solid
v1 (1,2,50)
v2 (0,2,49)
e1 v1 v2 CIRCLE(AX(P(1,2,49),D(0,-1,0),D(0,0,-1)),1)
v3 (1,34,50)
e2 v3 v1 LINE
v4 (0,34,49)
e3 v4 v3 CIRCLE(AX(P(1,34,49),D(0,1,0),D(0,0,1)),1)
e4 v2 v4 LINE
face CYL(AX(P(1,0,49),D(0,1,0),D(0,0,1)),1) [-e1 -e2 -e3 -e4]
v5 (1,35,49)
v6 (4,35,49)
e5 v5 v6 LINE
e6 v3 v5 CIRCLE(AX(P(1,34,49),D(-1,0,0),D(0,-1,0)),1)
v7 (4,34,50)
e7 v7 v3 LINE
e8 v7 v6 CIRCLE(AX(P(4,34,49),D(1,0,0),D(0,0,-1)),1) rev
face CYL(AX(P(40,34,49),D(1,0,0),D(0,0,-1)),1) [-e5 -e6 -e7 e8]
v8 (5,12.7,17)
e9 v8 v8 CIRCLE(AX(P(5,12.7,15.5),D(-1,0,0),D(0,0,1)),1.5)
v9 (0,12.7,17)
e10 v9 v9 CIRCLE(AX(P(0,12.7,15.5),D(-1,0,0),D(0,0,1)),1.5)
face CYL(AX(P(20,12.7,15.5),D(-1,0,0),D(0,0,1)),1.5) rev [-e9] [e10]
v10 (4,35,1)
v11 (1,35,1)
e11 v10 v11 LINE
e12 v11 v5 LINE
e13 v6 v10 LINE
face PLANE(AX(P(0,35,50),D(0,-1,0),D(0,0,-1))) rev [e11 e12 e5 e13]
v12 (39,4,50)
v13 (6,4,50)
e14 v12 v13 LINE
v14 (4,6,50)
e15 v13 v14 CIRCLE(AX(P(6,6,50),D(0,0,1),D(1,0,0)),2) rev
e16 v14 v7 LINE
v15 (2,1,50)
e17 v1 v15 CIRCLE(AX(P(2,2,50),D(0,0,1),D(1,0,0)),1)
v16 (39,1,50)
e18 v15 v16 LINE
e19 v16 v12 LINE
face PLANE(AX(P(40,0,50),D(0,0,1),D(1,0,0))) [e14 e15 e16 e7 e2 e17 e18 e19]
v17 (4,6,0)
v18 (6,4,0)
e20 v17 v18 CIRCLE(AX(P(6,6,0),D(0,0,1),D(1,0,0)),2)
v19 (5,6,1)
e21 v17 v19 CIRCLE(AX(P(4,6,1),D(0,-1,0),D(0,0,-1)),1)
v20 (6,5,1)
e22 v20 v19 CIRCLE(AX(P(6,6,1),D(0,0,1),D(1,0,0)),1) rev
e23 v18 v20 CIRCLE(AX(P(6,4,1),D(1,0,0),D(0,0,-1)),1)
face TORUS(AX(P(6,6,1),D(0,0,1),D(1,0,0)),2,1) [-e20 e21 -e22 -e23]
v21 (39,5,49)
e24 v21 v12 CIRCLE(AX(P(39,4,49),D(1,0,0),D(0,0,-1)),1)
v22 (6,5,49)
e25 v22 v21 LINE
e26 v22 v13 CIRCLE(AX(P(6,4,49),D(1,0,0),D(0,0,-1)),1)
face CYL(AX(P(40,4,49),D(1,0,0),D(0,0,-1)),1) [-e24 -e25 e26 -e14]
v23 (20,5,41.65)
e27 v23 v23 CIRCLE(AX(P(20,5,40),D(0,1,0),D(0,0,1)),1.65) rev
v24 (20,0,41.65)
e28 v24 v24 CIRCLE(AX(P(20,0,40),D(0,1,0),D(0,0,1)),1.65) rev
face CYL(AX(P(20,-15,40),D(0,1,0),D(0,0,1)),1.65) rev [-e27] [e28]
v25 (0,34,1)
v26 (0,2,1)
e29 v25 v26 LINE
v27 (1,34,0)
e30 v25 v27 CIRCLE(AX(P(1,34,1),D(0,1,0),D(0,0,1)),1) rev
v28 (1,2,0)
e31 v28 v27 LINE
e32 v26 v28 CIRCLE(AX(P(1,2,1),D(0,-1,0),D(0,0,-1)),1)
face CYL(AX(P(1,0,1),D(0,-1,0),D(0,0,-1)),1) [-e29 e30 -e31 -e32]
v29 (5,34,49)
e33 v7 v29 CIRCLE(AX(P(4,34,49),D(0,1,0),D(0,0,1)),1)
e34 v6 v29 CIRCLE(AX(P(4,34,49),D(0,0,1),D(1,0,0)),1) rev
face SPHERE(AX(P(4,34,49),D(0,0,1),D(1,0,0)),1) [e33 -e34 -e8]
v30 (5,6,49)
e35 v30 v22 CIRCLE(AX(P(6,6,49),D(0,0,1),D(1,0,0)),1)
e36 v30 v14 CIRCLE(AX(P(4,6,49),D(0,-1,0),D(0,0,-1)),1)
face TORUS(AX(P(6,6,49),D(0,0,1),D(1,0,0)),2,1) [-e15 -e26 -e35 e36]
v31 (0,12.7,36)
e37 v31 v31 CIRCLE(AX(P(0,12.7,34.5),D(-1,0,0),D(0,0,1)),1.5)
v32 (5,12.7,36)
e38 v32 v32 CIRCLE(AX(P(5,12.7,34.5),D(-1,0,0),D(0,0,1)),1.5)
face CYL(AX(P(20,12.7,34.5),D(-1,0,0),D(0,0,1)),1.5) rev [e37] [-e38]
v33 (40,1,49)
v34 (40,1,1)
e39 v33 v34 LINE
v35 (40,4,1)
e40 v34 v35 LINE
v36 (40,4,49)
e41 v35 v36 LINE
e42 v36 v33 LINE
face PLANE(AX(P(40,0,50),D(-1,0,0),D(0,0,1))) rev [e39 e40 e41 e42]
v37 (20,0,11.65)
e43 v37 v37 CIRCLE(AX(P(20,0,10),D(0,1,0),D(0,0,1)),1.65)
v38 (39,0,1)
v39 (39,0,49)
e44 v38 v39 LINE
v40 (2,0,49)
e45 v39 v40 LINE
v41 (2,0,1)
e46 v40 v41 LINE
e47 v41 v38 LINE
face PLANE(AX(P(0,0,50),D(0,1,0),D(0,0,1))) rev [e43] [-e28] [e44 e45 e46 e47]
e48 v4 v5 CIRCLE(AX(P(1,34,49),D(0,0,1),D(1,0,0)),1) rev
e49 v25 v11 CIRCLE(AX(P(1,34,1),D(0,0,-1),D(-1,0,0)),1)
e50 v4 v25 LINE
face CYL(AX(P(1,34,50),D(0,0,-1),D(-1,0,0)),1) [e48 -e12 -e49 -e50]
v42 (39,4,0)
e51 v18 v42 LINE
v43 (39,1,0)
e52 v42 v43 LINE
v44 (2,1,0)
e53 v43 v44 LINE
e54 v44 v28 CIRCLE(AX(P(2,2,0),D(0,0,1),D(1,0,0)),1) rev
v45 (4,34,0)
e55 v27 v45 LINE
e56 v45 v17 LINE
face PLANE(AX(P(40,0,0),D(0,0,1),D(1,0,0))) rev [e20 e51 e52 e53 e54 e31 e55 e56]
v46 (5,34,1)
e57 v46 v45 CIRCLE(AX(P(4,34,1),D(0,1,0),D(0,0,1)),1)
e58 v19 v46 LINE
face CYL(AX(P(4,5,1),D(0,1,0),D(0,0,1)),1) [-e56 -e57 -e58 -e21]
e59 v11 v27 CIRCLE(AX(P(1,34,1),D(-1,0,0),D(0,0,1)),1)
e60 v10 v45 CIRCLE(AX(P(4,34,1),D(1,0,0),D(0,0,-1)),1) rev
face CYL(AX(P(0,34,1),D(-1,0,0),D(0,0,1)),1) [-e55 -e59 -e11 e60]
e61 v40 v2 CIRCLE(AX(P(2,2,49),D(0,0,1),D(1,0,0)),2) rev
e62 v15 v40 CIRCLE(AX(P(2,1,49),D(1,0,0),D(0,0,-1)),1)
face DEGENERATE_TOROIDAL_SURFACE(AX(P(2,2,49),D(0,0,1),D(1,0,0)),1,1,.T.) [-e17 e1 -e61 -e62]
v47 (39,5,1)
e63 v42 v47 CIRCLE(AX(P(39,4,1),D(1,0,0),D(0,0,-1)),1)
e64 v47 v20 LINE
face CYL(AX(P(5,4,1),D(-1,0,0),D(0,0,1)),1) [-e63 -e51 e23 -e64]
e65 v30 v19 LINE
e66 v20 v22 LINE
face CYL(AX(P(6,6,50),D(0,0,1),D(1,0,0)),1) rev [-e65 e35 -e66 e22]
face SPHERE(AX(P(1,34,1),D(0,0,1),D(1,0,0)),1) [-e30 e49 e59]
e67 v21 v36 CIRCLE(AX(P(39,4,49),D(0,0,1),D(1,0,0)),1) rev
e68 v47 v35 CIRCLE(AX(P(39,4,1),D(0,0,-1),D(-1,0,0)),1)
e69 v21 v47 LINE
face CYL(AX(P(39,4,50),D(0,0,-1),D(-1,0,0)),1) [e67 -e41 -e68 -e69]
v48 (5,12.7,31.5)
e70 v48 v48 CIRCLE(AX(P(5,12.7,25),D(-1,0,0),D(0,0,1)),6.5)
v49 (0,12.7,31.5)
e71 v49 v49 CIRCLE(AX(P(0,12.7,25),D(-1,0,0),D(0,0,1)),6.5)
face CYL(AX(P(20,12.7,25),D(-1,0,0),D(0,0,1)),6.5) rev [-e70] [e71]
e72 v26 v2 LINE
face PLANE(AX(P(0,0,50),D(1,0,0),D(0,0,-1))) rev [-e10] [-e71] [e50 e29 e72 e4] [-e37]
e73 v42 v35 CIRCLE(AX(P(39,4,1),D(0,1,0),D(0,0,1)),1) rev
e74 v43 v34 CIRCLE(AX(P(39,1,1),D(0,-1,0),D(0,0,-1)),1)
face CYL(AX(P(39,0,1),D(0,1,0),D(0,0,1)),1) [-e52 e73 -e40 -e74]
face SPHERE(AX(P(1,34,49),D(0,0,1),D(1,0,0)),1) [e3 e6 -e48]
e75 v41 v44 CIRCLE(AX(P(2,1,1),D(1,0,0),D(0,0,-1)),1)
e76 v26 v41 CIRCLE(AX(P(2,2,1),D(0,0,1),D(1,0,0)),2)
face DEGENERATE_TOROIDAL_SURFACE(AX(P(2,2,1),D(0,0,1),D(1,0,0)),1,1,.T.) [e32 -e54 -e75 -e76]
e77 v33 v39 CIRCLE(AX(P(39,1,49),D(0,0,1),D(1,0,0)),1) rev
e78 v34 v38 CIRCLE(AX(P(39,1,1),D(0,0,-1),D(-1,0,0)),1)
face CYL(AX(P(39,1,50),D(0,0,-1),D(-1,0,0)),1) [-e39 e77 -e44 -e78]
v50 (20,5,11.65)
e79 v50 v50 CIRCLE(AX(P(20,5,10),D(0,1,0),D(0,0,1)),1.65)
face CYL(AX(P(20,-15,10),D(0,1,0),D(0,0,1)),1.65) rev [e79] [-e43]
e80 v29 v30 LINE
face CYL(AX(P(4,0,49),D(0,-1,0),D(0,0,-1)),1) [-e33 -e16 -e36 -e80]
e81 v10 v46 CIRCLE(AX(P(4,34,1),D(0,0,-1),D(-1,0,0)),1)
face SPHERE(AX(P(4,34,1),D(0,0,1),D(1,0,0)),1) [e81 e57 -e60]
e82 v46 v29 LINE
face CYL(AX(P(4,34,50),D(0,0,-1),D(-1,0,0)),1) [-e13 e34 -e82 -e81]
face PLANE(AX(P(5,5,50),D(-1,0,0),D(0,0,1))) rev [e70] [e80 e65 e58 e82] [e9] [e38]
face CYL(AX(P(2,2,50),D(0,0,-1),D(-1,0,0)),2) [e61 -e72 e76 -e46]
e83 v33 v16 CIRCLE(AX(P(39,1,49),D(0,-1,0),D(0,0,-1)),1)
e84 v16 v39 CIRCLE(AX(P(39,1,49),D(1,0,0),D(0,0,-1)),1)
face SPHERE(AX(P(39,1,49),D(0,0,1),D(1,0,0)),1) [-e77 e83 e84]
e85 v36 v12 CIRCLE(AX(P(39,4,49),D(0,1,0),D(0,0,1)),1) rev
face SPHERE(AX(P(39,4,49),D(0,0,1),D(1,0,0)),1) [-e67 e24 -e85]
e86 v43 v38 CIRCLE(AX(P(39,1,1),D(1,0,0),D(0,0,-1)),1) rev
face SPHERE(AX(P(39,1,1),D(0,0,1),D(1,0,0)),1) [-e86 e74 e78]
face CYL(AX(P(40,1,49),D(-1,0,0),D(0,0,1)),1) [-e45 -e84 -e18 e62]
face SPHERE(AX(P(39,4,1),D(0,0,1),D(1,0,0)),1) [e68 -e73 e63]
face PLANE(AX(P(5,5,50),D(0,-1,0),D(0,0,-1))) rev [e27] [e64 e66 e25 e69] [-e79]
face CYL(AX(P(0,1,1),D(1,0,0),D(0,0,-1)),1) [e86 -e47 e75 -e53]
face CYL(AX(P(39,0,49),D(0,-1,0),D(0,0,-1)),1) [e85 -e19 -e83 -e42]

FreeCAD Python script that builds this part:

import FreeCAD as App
import Part
import Sketcher
Q = App.Units.Quantity


def edges_at(feature, points):
    """Names of the edges that pass closest to the given points."""
    edges = feature.Shape.Edges
    near = lambda p: min(range(len(edges)), key=lambda i: edges[i].distToShape(Part.Vertex(*p))[0])
    return sorted({f"Edge{near(p) + 1}" for p in points})


def add_polygon(sketch, points):
    """Adds a closed chain of lines whose ends are joined by coincident constraints."""
    first, n = sketch.GeometryCount, len(points)
    for a, b in zip(points, points[1:] + points[:1]):
        sketch.addGeometry(Part.LineSegment(App.Vector(*a, 0), App.Vector(*b, 0)), False)
    for i in range(n):
        sketch.addConstraint(Sketcher.Constraint("Coincident", first + i, 2, first + (i + 1) % n, 1))

doc = App.newDocument("Part")
body = doc.addObject("PartDesign::Body", "Body")

sketch1 = body.newObject("Sketcher::SketchObject", "Sketch")
sketch1.AttachmentSupport = (doc.getObject("XY_Plane"), [""])
sketch1.MapMode = "FlatFace"
add_polygon(sketch1, [(0, 35), (0, 0), (40, 0), (40, 5), (5, 5), (5, 35)])
sketch1.addConstraint([
    Sketcher.Constraint("Vertical", 0),
    Sketcher.Constraint("Horizontal", 1),
    Sketcher.Constraint("Vertical", 2),
    Sketcher.Constraint("Horizontal", 3),
    Sketcher.Constraint("Vertical", 4),
    Sketcher.Constraint("Horizontal", 5),
    Sketcher.Constraint("Coincident", 0, 2, -1, 1),
    Sketcher.Constraint("Equal", 3, 0),
    Sketcher.Constraint("Equal", 5, 2),
    Sketcher.Constraint("DistanceX", 1, 1, 1, 2, Q("40 mm")),
    Sketcher.Constraint("DistanceX", 3, 2, 3, 1, Q("35 mm")),
])
pad1 = body.newObject("PartDesign::Pad", "Pad")
pad1.Profile = sketch1
pad1.Length = 50
doc.recompute()

fillet = body.newObject("PartDesign::Fillet", "Fillet")
fillet.Base = (pad1, edges_at(pad1, [(0, 0, 25)]))
fillet.Radius = 2

sketch2 = body.newObject("Sketcher::SketchObject", "Sketch001")
sketch2.AttachmentSupport = (doc.getObject("YZ_Plane"), [""])
sketch2.MapMode = "FlatFace"
sketch2.addGeometry([
    Part.Circle(App.Vector(12.7, 25, 0), App.Vector(0, 0, 1), 6.5),
    Part.Circle(App.Vector(12.7, 15.5, 0), App.Vector(0, 0, 1), 1.5),
    Part.Circle(App.Vector(12.7, 34.5, 0), App.Vector(0, 0, 1), 1.5),
], False)
sketch2.addConstraint([
    Sketcher.Constraint("Equal", 1, 2),
    Sketcher.Constraint("Vertical", 0, 3, 1, 3),
    Sketcher.Constraint("Vertical", 1, 3, 2, 3),
    Sketcher.Constraint("Diameter", 0, Q("13 mm")),
    Sketcher.Constraint("Diameter", 1, Q("3 mm")),
    Sketcher.Constraint("DistanceY", -1, 1, 0, 3, Q("25 mm")),
    Sketcher.Constraint("DistanceY", 1, 3, 2, 3, Q("19 mm")),
    Sketcher.Constraint("DistanceX", -1, 1, 0, 3, Q("12.7 mm")),
    Sketcher.Constraint("DistanceY", -1, 1, 1, 3, Q("15.5 mm")),
])
pocket1 = body.newObject("PartDesign::Pocket", "Pocket")
pocket1.Profile = sketch2
pocket1.Length = 20
pocket1.Reversed = True

sketch3 = body.newObject("Sketcher::SketchObject", "Sketch002")
sketch3.AttachmentSupport = (doc.getObject("XZ_Plane"), [""])
sketch3.MapMode = "FlatFace"
sketch3.AttachmentOffset = App.Placement(App.Vector(0, 0, -5), App.Rotation())
sketch3.addGeometry([
    Part.Circle(App.Vector(20, 10, 0), App.Vector(0, 0, 1), 1.6),
    Part.Circle(App.Vector(20, 40, 0), App.Vector(0, 0, 1), 1.6),
], False)
sketch3.addConstraint([
    Sketcher.Constraint("Equal", 0, 1),
    Sketcher.Constraint("Vertical", 0, 3, 1, 3),
    Sketcher.Constraint("Diameter", 0, Q("3.3 mm")),
    Sketcher.Constraint("DistanceX", -1, 1, 0, 3, Q("20 mm")),
    Sketcher.Constraint("DistanceY", -1, 1, 0, 3, Q("10 mm")),
    Sketcher.Constraint("DistanceY", -1, 1, 1, 3, Q("40 mm")),
])
pocket2 = body.newObject("PartDesign::Pocket", "Pocket001")
pocket2.Profile = sketch3
pocket2.Length = 20
pocket2.Reversed = True
doc.recompute()

fillet2 = body.newObject("PartDesign::Fillet", "Fillet001")
fillet2.Base = (pocket2, edges_at(pocket2, [(5, 5, 25)]))
fillet2.Radius = 1
doc.recompute()

fillet3 = body.newObject("PartDesign::Fillet", "Fillet002")
fillet3.Base = (fillet2, edges_at(fillet2, [
    (23, 5, 50),
    (0, 35, 25),
    (5, 35, 25),
    (40, 5, 25),
    (40, 0, 25),
    (2.5, 35, 50),
    (21, 0, 0),
    (21, 0, 50),
    (0, 18.5, 50),
    (0.586, 0.586, 0),
    (0.586, 0.586, 50),
    (5, 20.5, 0),
    (5, 20.5, 50),
    (5.293, 5.293, 0),
    (5.293, 5.293, 50),
    (0, 18.5, 0),
    (2.5, 35, 0),
    (40, 2.5, 50),
    (23, 5, 0),
    (40, 2.5, 0),
]))
fillet3.Radius = 1

doc.recompute()
